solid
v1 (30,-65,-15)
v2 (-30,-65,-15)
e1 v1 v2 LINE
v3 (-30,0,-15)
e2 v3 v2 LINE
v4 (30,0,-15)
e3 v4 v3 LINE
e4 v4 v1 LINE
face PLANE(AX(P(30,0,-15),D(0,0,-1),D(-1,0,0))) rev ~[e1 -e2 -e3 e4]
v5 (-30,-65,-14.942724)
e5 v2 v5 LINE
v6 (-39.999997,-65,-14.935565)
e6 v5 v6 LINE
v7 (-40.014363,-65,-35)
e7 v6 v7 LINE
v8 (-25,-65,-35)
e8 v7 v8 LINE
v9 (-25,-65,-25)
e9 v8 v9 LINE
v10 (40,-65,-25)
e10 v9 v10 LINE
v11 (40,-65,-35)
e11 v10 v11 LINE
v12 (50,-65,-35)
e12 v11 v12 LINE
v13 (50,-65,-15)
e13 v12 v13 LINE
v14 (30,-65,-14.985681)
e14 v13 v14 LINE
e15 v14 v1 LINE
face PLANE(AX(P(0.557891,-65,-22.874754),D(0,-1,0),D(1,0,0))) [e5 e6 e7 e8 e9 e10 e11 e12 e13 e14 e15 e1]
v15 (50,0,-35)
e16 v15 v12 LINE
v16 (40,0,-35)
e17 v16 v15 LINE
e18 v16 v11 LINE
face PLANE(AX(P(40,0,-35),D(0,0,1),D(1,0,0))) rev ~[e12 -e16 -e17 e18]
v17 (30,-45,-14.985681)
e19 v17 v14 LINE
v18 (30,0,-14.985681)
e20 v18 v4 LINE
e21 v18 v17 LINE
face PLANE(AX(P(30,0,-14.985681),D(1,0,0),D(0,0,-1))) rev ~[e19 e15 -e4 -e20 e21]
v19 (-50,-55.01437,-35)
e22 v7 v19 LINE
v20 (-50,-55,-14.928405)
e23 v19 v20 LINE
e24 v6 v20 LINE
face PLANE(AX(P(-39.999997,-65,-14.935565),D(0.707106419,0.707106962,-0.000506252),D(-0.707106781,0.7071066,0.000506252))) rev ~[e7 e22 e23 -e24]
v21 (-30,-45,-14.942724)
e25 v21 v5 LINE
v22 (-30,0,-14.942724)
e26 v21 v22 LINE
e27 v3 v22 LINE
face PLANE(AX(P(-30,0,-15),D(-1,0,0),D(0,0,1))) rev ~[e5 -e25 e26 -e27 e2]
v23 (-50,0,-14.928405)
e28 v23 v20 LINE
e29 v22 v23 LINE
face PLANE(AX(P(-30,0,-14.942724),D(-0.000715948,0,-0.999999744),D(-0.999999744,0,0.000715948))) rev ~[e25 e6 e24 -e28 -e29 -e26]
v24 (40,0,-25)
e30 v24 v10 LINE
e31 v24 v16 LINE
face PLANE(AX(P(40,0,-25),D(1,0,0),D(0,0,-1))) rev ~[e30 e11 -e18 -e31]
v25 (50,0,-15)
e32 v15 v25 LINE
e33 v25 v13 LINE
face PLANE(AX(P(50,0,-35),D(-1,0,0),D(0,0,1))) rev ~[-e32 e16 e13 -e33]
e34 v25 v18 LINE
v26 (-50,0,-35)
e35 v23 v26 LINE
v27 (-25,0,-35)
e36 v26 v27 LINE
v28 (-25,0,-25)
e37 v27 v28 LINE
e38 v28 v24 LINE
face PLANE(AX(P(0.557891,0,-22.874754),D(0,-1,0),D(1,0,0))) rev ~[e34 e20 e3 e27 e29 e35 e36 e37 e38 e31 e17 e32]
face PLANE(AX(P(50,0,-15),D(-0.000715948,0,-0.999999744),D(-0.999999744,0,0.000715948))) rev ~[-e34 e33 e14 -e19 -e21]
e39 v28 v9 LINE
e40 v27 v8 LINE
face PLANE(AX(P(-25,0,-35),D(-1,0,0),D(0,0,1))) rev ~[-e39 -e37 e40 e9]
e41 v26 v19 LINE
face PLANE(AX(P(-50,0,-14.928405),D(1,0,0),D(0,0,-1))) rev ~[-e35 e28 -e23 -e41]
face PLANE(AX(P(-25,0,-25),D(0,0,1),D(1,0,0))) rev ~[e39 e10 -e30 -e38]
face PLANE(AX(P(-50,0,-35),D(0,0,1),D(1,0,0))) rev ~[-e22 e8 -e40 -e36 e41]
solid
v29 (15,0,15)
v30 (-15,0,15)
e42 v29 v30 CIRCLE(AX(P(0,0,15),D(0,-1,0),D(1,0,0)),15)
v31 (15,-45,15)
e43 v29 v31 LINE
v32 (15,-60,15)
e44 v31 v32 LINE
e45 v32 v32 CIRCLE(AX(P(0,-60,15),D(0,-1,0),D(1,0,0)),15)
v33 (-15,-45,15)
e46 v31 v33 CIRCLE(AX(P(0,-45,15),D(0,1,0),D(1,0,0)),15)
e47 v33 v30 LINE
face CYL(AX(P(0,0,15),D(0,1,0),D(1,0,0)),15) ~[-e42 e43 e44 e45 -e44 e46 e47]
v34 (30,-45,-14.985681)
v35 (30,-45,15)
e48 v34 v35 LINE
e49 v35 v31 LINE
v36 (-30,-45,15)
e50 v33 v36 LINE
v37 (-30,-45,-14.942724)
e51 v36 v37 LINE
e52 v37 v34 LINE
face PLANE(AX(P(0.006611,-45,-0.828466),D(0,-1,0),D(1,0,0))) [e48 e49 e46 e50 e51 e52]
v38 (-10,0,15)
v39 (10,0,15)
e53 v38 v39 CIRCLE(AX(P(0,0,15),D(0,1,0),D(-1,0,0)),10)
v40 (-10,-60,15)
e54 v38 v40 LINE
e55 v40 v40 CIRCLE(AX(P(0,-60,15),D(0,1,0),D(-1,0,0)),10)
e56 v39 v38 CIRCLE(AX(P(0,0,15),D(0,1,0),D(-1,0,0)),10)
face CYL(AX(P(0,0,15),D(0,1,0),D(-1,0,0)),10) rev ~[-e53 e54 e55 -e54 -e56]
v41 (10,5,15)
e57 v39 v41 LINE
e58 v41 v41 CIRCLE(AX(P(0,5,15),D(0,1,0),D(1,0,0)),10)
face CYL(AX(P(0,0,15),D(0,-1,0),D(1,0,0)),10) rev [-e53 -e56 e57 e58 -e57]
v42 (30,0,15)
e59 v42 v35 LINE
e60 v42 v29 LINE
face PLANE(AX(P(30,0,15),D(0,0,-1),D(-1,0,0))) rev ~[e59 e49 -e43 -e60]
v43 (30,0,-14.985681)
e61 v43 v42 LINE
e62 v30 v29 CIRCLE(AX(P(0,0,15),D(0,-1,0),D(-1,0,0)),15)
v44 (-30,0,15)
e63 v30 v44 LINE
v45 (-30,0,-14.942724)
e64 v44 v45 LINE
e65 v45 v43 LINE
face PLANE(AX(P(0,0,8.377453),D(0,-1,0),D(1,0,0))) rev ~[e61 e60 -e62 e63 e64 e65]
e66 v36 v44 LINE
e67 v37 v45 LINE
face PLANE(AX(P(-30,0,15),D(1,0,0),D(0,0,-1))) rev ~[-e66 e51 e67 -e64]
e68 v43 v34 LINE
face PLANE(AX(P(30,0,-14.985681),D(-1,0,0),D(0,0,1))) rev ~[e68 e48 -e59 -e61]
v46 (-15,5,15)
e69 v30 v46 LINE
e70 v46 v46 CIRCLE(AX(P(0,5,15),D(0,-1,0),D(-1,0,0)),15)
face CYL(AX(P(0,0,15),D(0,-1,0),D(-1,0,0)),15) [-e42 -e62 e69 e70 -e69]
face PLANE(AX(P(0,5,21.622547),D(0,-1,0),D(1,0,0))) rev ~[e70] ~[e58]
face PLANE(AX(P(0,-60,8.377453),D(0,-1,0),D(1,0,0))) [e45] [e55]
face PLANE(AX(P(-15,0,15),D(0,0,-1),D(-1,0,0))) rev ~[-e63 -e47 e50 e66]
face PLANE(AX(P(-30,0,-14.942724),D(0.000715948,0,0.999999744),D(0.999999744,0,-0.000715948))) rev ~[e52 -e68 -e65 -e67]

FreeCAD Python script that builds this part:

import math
import FreeCAD as App
import Part
import Sketcher

V = App.Vector
Q = App.Units.Quantity

doc = App.newDocument("Part")
body = doc.addObject("PartDesign::Body", "Body")

sketch1 = body.newObject("Sketcher::SketchObject", "Sketch")
sketch1.AttachmentSupport = (doc.getObject("XZ_Plane"), [""])
sketch1.MapMode = "FlatFace"
sketch1.addGeometry([
    Part.LineSegment(V(40, -35, 0), V(50, -35, 0)),
    Part.LineSegment(V(50, -35, 0), V(50, -15, 0)),
    Part.LineSegment(V(50, -15, 0), V(30, -14.986, 0)),
    Part.LineSegment(V(30, -14.986, 0), V(30, -15, 0)),
    Part.LineSegment(V(30, -15, 0), V(-30, -15, 0)),
    Part.LineSegment(V(-30, -15, 0), V(-30, -14.943, 0)),
    Part.LineSegment(V(-30, -14.943, 0), V(-50, -14.928, 0)),
    Part.LineSegment(V(-50, -14.928, 0), V(-50, -35, 0)),
    Part.LineSegment(V(-50, -35, 0), V(-25, -35, 0)),
    Part.LineSegment(V(-25, -35, 0), V(-25, -25, 0)),
    Part.LineSegment(V(-25, -25, 0), V(40, -25, 0)),
    Part.LineSegment(V(40, -25, 0), V(40, -35, 0)),
], False)
sketch1.addConstraint([
    Sketcher.Constraint("Coincident", 0, 2, 1, 1),
    Sketcher.Constraint("Coincident", 1, 2, 2, 1),
    Sketcher.Constraint("Coincident", 2, 2, 3, 1),
    Sketcher.Constraint("Coincident", 3, 2, 4, 1),
    Sketcher.Constraint("Coincident", 4, 2, 5, 1),
    Sketcher.Constraint("Coincident", 5, 2, 6, 1),
    Sketcher.Constraint("Coincident", 6, 2, 7, 1),
    Sketcher.Constraint("Coincident", 7, 2, 8, 1),
    Sketcher.Constraint("Coincident", 8, 2, 9, 1),
    Sketcher.Constraint("Coincident", 9, 2, 10, 1),
    Sketcher.Constraint("Coincident", 10, 2, 11, 1),
    Sketcher.Constraint("Coincident", 11, 2, 0, 1),
    Sketcher.Constraint("Horizontal", 0),
    Sketcher.Constraint("Vertical", 1),
    Sketcher.Constraint("Vertical", 3),
    Sketcher.Constraint("Horizontal", 4),
    Sketcher.Constraint("Vertical", 5),
    Sketcher.Constraint("Vertical", 7),
    Sketcher.Constraint("Horizontal", 8),
    Sketcher.Constraint("Vertical", 9),
    Sketcher.Constraint("Horizontal", 10),
    Sketcher.Constraint("Vertical", 11),
    Sketcher.Constraint("Symmetric", 0, 2, 7, 2, -2),
    Sketcher.Constraint("Parallel", 2, 6),
    Sketcher.Constraint("Horizontal", 1, 2, 3, 2),
    Sketcher.Constraint("Equal", 0, 9),
    Sketcher.Constraint("Equal", 2, 6),
    Sketcher.Constraint("DistanceX", 0, 1, 0, 2, 10.0),
    Sketcher.Constraint("DistanceX", 4, 2, 4, 1, 60.0),
    Sketcher.Constraint("DistanceX", 8, 1, 8, 2, 25.0),
    Sketcher.Constraint("DistanceX", 10, 1, 10, 2, 65.0),
    Sketcher.Constraint("DistanceY", 1, 1, 1, 2, 20.0),
    Sketcher.Constraint("DistanceY", 0, 2, -1, 1, 35.0),
    Sketcher.Constraint("DistanceY", 3, 2, 3, 1, 0.014319),
    Sketcher.Constraint("DistanceY", 5, 1, 5, 2, 0.057276),
])
pad1 = body.newObject("PartDesign::Pad", "Pad")
pad1.Profile = sketch1
pad1.Length = 65

sketch2 = body.newObject("Sketcher::SketchObject", "Sketch001")
sketch2.Placement = App.Placement(V(-0.010714, 0, -14.964195), App.Rotation(V(0.999999744, 0, -0.000715948), V(0, 1.000000001, 0), V(0.000715948, 0, 0.999999744), "ZXY"))
sketch2.addGeometry([
    Part.LineSegment(V(-40, -65, 0), V(-50, -55, 0)),
    Part.LineSegment(V(-50, -55, 0), V(-50, -65, 0)),
    Part.LineSegment(V(-50, -65, 0), V(-40, -65, 0)),
], False)
sketch2.addConstraint([
    Sketcher.Constraint("Coincident", 0, 2, 1, 1),
    Sketcher.Constraint("Coincident", 1, 2, 2, 1),
    Sketcher.Constraint("Coincident", 2, 2, 0, 1),
    Sketcher.Constraint("Vertical", 1),
    Sketcher.Constraint("Horizontal", 2),
    Sketcher.Constraint("DistanceY", 1, 2, 1, 1, 10.0),
    Sketcher.Constraint("Angle", 0, Q("135.000015 deg")),
    Sketcher.Constraint("DistanceY", 0, 2, -1, 1, 55.0),
    Sketcher.Constraint("DistanceX", 0, 2, -1, 1, 49.989299),
])
pocket1 = body.newObject("PartDesign::Pocket", "Pocket")
pocket1.Profile = sketch2
pocket1.Length = 25
body2 = doc.addObject("PartDesign::Body", "Body001")

sketch3 = body2.newObject("Sketcher::SketchObject", "Sketch002")
sketch3.AttachmentSupport = (doc.getObject("XZ_Plane001"), [""])
sketch3.MapMode = "FlatFace"
sketch3.addGeometry([
    Part.LineSegment(V(-30, -15, 0), V(30, -15, 0)),
    Part.LineSegment(V(30, -15, 0), V(30, 15, 0)),
    Part.LineSegment(V(30, 15, 0), V(15, 15, 0)),
    Part.ArcOfCircle(Part.Circle(V(0, 15, 0), V(0, 0, 1), 15), math.radians(180), math.radians(360)),
    Part.LineSegment(V(-15, 15, 0), V(-30, 15, 0)),
    Part.LineSegment(V(-30, 15, 0), V(-30, -15, 0)),
], False)
sketch3.addConstraint([
    Sketcher.Constraint("Coincident", 0, 2, 1, 1),
    Sketcher.Constraint("Coincident", 1, 2, 2, 1),
    Sketcher.Constraint("Coincident", 2, 2, 3, 2),
    Sketcher.Constraint("Coincident", 3, 1, 4, 1),
    Sketcher.Constraint("Coincident", 4, 2, 5, 1),
    Sketcher.Constraint("Coincident", 5, 2, 0, 1),
    Sketcher.Constraint("Vertical", 1),
    Sketcher.Constraint("Horizontal", 2),
    Sketcher.Constraint("Horizontal", 4),
    Sketcher.Constraint("Vertical", 5),
    Sketcher.Constraint("Symmetric", 2, 2, 3, 1, -2),
    Sketcher.Constraint("Horizontal", 3, 3, 1, 2),
    Sketcher.Constraint("Equal", 2, 4),
    Sketcher.Constraint("Radius", 3, 15.0),
    Sketcher.Constraint("DistanceX", 2, 2, 2, 1, 15.0),
    Sketcher.Constraint("DistanceY", -1, 1, 3, 3, 15.0),
    Sketcher.Constraint("DistanceY", 1, 1, 1, 2, 29.985681),
    Sketcher.Constraint("DistanceY", 5, 2, 5, 1, 29.942724),
])
pad2 = body2.newObject("PartDesign::Pad", "Pad001")
pad2.Profile = sketch3
pad2.Length = 45

sketch4 = body2.newObject("Sketcher::SketchObject", "Sketch003")
sketch4.AttachmentSupport = (doc.getObject("XZ_Plane001"), [""])
sketch4.MapMode = "FlatFace"
sketch4.addGeometry([
    Part.Circle(V(0, 15, 0), V(0, 0, 1), 15),
    Part.Circle(V(0, 15, 0), V(0, 0, 1), 10),
], False)
sketch4.addConstraint([
    Sketcher.Constraint("Coincident", 1, 3, 0, 3),
    Sketcher.Constraint("PointOnObject", 0, 3, -2),
    Sketcher.Constraint("Diameter", 0, 30.0),
    Sketcher.Constraint("Diameter", 1, 20.0),
    Sketcher.Constraint("DistanceY", -1, 1, 0, 3, 15.0),
])
pad3 = body2.newObject("PartDesign::Pad", "Pad002")
pad3.Profile = sketch4
pad3.Length = 60

sketch5 = body2.newObject("Sketcher::SketchObject", "Sketch004")
sketch5.AttachmentSupport = (doc.getObject("XZ_Plane001"), [""])
sketch5.MapMode = "FlatFace"
sketch5.addGeometry([
    Part.Circle(V(0, 15, 0), V(0, 0, 1), 15),
    Part.Circle(V(0, 15, 0), V(0, 0, 1), 10),
], False)
sketch5.addConstraint([
    Sketcher.Constraint("Coincident", 1, 3, 0, 3),
    Sketcher.Constraint("PointOnObject", 0, 3, -2),
    Sketcher.Constraint("Diameter", 0, 30.0),
    Sketcher.Constraint("Diameter", 1, 20.0),
    Sketcher.Constraint("DistanceY", -1, 1, 0, 3, 15.0),
])
pad4 = body2.newObject("PartDesign::Pad", "Pad003")
pad4.Profile = sketch5
pad4.Length = 5
pad4.Reversed = True
body.AllowCompound = True
doc.recompute()

boolean = body.newObject("PartDesign::Boolean", "Boolean")
boolean.Type = "Fuse"
boolean.addObjects([body2])

sketch6 = body.newObject("Sketcher::SketchObject", "Sketch005")
sketch6.AttachmentSupport = (doc.getObject("XZ_Plane"), [""])
sketch6.MapMode = "FlatFace"
sketch6.addGeometry([
    Part.LineSegment(V(-30, -15, 0), V(30, -15, 0)),
    Part.LineSegment(V(30, -15, 0), V(30, 15, 0)),
    Part.LineSegment(V(30, 15, 0), V(15, 15, 0)),
    Part.ArcOfCircle(Part.Circle(V(0, 15, 0), V(0, 0, 1), 15), math.radians(180), math.radians(360)),
    Part.LineSegment(V(-15, 15, 0), V(-30, 15, 0)),
    Part.LineSegment(V(-30, 15, 0), V(-30, -15, 0)),
], False)
sketch6.addConstraint([
    Sketcher.Constraint("Coincident", 0, 2, 1, 1),
    Sketcher.Constraint("Coincident", 1, 2, 2, 1),
    Sketcher.Constraint("Coincident", 2, 2, 3, 2),
    Sketcher.Constraint("Coincident", 3, 1, 4, 1),
    Sketcher.Constraint("Coincident", 4, 2, 5, 1),
    Sketcher.Constraint("Coincident", 5, 2, 0, 1),
    Sketcher.Constraint("Vertical", 1),
    Sketcher.Constraint("Horizontal", 2),
    Sketcher.Constraint("Horizontal", 4),
    Sketcher.Constraint("Vertical", 5),
    Sketcher.Constraint("Symmetric", 2, 2, 3, 1, -2),
    Sketcher.Constraint("Horizontal", 3, 3, 1, 2),
    Sketcher.Constraint("Equal", 2, 4),
    Sketcher.Constraint("Radius", 3, 15.0),
    Sketcher.Constraint("DistanceX", 2, 2, 2, 1, 15.0),
    Sketcher.Constraint("DistanceY", -1, 1, 3, 3, 15.0),
    Sketcher.Constraint("DistanceY", 1, 1, 1, 2, 29.985681),
    Sketcher.Constraint("DistanceY", 5, 2, 5, 1, 29.942724),
])
pad5 = body.newObject("PartDesign::Pad", "Pad004")
pad5.Profile = sketch6
pad5.Length = 5

doc.recompute()
